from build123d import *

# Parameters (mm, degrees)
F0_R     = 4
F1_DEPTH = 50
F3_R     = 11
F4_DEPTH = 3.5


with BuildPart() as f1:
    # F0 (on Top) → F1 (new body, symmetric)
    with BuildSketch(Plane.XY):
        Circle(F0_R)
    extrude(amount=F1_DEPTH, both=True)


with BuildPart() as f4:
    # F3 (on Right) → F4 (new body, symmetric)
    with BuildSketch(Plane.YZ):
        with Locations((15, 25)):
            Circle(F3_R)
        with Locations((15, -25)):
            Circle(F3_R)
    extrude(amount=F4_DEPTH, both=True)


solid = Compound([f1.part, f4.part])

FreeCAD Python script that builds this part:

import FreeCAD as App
import Part
import Sketcher

V = App.Vector

doc = App.newDocument("Part")
body = doc.addObject("PartDesign::Body", "Body")

sketch1 = body.newObject("Sketcher::SketchObject", "Sketch")
sketch1.AttachmentSupport = (doc.getObject("XY_Plane"), [""])
sketch1.MapMode = "FlatFace"
sketch1.addGeometry(Part.Circle(V(0, 0, 0), V(0, 0, 1), 4), False)
sketch1.addConstraint([
    Sketcher.Constraint("Coincident", 0, 3, -1, 1),
    Sketcher.Constraint("Diameter", 0, 8.0),
])
pad1 = body.newObject("PartDesign::Pad", "Pad")
pad1.Profile = sketch1
pad1.Length = 100
pad1.Midplane = True
body2 = doc.addObject("PartDesign::Body", "Body001")
body2.AllowCompound = True

sketch2 = body2.newObject("Sketcher::SketchObject", "Sketch001")
sketch2.AttachmentSupport = (doc.getObject("YZ_Plane001"), [""])
sketch2.MapMode = "FlatFace"
sketch2.addGeometry([
    Part.Circle(V(15, 25, 0), V(0, 0, 1), 11),
    Part.Circle(V(15, -25, 0), V(0, 0, 1), 11),
], False)
sketch2.addConstraint([
    Sketcher.Constraint("Equal", 0, 1),
    Sketcher.Constraint("Symmetric", 0, 3, 1, 3, -1),
    Sketcher.Constraint("Diameter", 0, 22.0),
    Sketcher.Constraint("DistanceX", -1, 1, 0, 3, 15.0),
    Sketcher.Constraint("DistanceY", -1, 1, 0, 3, 25.0),
])
pad2 = body2.newObject("PartDesign::Pad", "Pad001")
pad2.Profile = sketch2
pad2.Length = 7
pad2.Midplane = True

doc.recompute()
